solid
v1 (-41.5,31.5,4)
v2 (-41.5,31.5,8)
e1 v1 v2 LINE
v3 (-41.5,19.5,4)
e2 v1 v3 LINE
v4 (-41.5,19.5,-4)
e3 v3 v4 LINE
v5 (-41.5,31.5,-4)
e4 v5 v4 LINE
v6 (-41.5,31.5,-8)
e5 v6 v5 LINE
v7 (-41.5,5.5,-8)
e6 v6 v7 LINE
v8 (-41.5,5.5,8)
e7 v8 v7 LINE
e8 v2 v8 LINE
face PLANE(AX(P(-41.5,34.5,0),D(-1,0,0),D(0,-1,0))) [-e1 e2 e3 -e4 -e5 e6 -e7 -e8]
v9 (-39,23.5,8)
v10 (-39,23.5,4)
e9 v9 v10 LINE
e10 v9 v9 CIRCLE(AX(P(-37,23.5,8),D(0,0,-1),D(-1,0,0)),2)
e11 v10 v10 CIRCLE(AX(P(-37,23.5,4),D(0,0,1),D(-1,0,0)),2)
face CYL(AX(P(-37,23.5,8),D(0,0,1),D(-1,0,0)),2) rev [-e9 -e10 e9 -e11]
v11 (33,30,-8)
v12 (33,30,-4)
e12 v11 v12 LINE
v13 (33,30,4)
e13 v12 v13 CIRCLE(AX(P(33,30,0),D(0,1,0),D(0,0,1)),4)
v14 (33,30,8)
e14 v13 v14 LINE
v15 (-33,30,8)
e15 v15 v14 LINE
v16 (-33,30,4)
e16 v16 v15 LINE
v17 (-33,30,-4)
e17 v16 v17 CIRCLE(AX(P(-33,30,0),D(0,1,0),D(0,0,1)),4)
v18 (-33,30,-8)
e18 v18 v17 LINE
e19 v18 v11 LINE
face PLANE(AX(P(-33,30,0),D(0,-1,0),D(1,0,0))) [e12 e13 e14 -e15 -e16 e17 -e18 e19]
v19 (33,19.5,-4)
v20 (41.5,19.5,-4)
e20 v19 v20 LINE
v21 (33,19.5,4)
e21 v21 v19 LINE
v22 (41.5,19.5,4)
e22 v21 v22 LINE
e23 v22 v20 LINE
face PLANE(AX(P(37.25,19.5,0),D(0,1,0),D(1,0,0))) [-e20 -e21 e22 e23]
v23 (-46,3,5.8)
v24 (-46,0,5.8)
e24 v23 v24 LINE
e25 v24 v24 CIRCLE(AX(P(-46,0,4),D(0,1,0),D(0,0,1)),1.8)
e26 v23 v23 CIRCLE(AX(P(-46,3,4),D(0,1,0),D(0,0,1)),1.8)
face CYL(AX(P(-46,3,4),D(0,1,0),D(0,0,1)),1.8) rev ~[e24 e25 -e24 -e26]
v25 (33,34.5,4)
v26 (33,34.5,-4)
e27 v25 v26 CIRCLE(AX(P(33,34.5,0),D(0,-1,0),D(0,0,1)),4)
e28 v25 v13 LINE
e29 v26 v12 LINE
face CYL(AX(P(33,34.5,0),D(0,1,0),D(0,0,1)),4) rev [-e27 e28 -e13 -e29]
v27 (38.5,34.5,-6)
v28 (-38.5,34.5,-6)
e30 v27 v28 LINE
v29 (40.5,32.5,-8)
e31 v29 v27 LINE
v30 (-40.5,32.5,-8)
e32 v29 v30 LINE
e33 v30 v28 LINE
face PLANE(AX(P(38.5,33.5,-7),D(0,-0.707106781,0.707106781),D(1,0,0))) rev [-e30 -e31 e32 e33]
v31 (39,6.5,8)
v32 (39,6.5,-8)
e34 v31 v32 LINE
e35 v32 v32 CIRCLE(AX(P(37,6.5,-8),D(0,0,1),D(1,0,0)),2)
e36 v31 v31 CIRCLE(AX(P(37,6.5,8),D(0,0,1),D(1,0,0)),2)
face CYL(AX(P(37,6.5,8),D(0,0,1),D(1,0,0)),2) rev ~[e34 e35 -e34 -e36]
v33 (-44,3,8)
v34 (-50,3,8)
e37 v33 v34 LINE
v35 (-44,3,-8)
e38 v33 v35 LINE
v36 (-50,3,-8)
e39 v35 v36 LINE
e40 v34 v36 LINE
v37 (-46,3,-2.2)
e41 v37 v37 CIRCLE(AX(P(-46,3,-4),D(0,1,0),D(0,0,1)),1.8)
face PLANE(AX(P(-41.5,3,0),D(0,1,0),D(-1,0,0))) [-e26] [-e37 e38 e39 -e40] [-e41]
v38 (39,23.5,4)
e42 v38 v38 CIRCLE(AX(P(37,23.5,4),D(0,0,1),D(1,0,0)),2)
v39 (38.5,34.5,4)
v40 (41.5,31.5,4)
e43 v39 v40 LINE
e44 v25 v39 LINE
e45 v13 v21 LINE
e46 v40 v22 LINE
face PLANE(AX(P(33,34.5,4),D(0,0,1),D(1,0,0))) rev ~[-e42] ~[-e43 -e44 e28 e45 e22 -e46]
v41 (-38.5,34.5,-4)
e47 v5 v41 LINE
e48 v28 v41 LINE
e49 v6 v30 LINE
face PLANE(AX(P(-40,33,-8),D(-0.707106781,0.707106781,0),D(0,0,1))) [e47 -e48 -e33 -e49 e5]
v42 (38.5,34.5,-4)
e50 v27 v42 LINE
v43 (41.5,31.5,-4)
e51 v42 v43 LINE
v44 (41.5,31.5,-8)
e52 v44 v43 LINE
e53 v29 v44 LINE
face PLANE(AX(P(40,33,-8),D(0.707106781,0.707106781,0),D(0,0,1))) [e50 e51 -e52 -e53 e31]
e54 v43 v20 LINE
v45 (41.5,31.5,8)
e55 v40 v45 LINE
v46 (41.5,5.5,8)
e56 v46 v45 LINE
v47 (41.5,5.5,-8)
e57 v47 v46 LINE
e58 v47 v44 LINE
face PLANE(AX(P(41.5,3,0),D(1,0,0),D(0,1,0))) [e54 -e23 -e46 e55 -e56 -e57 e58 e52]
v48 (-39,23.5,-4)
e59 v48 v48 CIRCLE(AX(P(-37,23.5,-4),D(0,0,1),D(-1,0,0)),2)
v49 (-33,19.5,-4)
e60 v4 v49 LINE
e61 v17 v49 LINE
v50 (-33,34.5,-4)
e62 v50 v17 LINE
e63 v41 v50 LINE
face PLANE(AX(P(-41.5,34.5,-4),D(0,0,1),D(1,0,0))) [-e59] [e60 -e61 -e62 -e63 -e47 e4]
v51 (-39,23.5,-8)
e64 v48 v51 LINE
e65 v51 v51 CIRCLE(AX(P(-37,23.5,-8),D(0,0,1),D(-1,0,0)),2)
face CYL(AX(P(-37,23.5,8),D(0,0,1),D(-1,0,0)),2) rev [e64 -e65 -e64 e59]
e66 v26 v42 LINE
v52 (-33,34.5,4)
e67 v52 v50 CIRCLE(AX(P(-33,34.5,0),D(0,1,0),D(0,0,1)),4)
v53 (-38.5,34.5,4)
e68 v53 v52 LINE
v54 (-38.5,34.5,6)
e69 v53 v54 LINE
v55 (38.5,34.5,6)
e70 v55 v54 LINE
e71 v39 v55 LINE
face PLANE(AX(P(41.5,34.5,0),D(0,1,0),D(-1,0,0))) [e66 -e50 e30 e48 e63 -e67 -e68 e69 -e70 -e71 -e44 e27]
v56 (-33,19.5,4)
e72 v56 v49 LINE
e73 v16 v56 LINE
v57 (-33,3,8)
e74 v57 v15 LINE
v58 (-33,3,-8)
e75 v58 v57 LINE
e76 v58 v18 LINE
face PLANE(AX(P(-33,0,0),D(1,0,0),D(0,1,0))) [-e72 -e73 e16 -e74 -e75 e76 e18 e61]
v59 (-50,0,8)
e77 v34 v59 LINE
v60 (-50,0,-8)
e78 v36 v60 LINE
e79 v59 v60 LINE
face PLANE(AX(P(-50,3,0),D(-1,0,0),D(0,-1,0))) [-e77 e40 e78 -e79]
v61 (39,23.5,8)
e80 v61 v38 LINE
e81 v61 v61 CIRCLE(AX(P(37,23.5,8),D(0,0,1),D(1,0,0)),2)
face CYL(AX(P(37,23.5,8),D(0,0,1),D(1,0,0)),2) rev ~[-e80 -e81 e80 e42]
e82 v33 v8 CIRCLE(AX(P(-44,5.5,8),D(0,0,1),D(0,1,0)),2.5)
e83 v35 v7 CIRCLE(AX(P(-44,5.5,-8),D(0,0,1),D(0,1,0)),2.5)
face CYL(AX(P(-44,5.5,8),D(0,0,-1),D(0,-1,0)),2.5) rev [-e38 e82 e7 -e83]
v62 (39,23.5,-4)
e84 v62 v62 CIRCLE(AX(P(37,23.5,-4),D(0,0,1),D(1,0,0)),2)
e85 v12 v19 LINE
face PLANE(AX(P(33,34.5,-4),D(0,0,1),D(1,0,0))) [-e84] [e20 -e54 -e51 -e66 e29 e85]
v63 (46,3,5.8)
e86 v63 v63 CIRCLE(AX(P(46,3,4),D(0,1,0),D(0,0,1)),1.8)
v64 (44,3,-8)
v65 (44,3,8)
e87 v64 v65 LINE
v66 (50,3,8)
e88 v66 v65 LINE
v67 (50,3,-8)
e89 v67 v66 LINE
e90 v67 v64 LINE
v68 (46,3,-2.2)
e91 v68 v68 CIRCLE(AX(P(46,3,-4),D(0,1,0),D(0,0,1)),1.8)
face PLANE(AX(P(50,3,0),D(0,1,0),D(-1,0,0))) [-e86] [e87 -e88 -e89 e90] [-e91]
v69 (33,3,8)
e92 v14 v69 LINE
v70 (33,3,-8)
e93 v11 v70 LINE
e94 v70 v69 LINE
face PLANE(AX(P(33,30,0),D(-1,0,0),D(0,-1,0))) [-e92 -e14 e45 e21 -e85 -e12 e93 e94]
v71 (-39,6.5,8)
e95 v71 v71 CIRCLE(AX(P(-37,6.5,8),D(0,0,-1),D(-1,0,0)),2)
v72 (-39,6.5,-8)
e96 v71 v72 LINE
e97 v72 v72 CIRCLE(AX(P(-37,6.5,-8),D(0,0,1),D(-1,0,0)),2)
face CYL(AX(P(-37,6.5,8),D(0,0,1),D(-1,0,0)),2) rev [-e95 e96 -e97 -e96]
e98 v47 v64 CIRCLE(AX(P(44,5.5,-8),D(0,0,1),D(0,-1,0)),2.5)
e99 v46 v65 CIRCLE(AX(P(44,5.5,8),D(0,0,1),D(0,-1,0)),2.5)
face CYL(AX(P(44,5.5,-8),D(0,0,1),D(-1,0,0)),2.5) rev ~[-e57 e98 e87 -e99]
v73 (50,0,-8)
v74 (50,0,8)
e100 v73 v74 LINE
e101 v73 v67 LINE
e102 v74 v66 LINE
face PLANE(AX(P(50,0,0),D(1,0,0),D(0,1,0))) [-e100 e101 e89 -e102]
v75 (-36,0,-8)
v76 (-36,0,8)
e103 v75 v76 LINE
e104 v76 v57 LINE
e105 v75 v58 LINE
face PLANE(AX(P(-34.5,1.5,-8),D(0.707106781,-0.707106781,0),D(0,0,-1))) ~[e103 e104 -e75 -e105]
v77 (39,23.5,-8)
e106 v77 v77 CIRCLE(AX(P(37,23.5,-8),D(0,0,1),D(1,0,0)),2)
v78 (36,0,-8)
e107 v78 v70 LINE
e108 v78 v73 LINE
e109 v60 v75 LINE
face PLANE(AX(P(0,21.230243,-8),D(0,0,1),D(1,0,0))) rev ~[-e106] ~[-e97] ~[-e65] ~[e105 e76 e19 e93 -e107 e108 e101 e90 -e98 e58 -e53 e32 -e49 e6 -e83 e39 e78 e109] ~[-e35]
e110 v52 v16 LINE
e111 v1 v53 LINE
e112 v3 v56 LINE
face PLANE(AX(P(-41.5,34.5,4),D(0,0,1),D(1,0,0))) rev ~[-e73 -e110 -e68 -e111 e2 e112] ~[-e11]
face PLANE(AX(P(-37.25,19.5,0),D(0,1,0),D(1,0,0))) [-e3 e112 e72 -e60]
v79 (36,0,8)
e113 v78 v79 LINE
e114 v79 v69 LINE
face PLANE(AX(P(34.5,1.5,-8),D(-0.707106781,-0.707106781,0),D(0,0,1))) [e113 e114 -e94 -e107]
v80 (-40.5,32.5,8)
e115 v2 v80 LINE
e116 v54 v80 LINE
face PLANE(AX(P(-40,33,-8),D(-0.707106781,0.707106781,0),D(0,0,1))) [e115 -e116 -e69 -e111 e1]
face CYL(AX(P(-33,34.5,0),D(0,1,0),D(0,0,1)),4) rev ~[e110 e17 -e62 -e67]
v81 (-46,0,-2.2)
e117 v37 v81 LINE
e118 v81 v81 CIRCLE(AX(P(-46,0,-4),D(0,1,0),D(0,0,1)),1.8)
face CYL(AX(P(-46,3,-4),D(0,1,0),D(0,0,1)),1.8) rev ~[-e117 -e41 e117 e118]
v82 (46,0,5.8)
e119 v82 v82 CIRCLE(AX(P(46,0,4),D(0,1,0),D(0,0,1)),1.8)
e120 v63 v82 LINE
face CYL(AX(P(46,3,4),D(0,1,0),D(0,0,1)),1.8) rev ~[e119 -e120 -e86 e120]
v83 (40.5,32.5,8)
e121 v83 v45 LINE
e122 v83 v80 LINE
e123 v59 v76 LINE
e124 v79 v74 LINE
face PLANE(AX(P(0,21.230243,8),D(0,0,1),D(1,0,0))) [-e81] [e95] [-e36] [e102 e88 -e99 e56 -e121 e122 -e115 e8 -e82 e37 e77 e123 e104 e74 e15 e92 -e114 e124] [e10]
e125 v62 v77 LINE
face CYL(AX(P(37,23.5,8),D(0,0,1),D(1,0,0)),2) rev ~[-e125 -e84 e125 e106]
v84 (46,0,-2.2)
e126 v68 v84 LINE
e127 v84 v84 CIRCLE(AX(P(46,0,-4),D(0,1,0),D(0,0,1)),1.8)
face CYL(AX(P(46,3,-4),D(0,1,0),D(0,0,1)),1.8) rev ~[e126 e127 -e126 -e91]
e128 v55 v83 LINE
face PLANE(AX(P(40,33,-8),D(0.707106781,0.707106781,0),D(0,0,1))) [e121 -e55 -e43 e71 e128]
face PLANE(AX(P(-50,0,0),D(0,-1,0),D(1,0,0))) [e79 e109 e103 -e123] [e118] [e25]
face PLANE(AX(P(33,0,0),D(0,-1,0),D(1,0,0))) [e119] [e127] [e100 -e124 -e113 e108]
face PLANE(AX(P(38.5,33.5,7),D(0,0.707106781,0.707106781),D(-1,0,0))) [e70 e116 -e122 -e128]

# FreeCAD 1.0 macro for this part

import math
import FreeCAD as App
import Part
import Sketcher

V = App.Vector
Q = App.Units.Quantity


def edges_at(feature, points):
    """Names of the edges that pass closest to the given points."""
    edges = feature.Shape.Edges
    near = lambda p: min(range(len(edges)), key=lambda i: edges[i].distToShape(Part.Vertex(*p))[0])
    return sorted({f"Edge{near(p) + 1}" for p in points})

doc = App.newDocument("Part")
body = doc.addObject("PartDesign::Body", "Body")

sketch1 = doc.addObject("Sketcher::SketchObject", "Sketch")
body.addObject(sketch1)
sketch1.AttachmentSupport = (doc.XY_Plane, [""])
sketch1.MapMode = "FlatFace"
sketch1.addGeometry(Part.LineSegment(V(-50, 0, 0), V(-33, 0, 0)), False)
sketch1.addGeometry(Part.LineSegment(V(-33, 0, 0), V(-33, 30, 0)), False)
sketch1.addGeometry(Part.LineSegment(V(-33, 30, 0), V(33, 30, 0)), False)
sketch1.addGeometry(Part.LineSegment(V(33, 30, 0), V(33, 0, 0)), False)
sketch1.addGeometry(Part.LineSegment(V(33, 0, 0), V(50, 0, 0)), False)
sketch1.addGeometry(Part.LineSegment(V(50, 0, 0), V(50, 3, 0)), False)
sketch1.addGeometry(Part.LineSegment(V(50, 3, 0), V(41.5, 3, 0)), False)
sketch1.addGeometry(Part.LineSegment(V(41.5, 3, 0), V(41.5, 34.5, 0)), False)
sketch1.addGeometry(Part.LineSegment(V(41.5, 34.5, 0), V(-41.5, 34.5, 0)), False)
sketch1.addGeometry(Part.LineSegment(V(-41.5, 34.5, 0), V(-41.5, 3, 0)), False)
sketch1.addGeometry(Part.LineSegment(V(-41.5, 3, 0), V(-50, 3, 0)), False)
sketch1.addGeometry(Part.LineSegment(V(-50, 3, 0), V(-50, 0, 0)), False)
sketch1.addConstraint(Sketcher.Constraint("Coincident", 0, 2, 1, 1))
sketch1.addConstraint(Sketcher.Constraint("Coincident", 1, 2, 2, 1))
sketch1.addConstraint(Sketcher.Constraint("Coincident", 2, 2, 3, 1))
sketch1.addConstraint(Sketcher.Constraint("Coincident", 3, 2, 4, 1))
sketch1.addConstraint(Sketcher.Constraint("Coincident", 4, 2, 5, 1))
sketch1.addConstraint(Sketcher.Constraint("Coincident", 5, 2, 6, 1))
sketch1.addConstraint(Sketcher.Constraint("Coincident", 6, 2, 7, 1))
sketch1.addConstraint(Sketcher.Constraint("Coincident", 7, 2, 8, 1))
sketch1.addConstraint(Sketcher.Constraint("Coincident", 8, 2, 9, 1))
sketch1.addConstraint(Sketcher.Constraint("Coincident", 9, 2, 10, 1))
sketch1.addConstraint(Sketcher.Constraint("Coincident", 10, 2, 11, 1))
sketch1.addConstraint(Sketcher.Constraint("Coincident", 11, 2, 0, 1))
sketch1.addConstraint(Sketcher.Constraint("Horizontal", 0))
sketch1.addConstraint(Sketcher.Constraint("Vertical", 1))
sketch1.addConstraint(Sketcher.Constraint("Horizontal", 2))
sketch1.addConstraint(Sketcher.Constraint("Vertical", 3))
sketch1.addConstraint(Sketcher.Constraint("Horizontal", 4))
sketch1.addConstraint(Sketcher.Constraint("Vertical", 5))
sketch1.addConstraint(Sketcher.Constraint("Horizontal", 6))
sketch1.addConstraint(Sketcher.Constraint("Vertical", 7))
sketch1.addConstraint(Sketcher.Constraint("Horizontal", 8))
sketch1.addConstraint(Sketcher.Constraint("Vertical", 9))
sketch1.addConstraint(Sketcher.Constraint("Horizontal", 10))
sketch1.addConstraint(Sketcher.Constraint("Vertical", 11))
sketch1.addConstraint(Sketcher.Constraint("Symmetric", 0, 2, 3, 2, -1, 1))
sketch1.addConstraint(Sketcher.Constraint("Symmetric", 6, 2, 9, 2, -2))
sketch1.addConstraint(Sketcher.Constraint("Symmetric", 4, 2, 11, 2, -2))
sketch1.addConstraint(Sketcher.Constraint("DistanceX", 0, 1, 0, 2, Q("17 mm")))
sketch1.addConstraint(Sketcher.Constraint("DistanceX", 2, 1, 2, 2, Q("66 mm")))
sketch1.addConstraint(Sketcher.Constraint("DistanceX", 8, 2, 8, 1, Q("83 mm")))
sketch1.addConstraint(Sketcher.Constraint("DistanceY", 1, 1, 1, 2, Q("30 mm")))
sketch1.addConstraint(Sketcher.Constraint("DistanceY", 5, 1, 5, 2, Q("3 mm")))
sketch1.addConstraint(Sketcher.Constraint("DistanceY", 7, 1, 7, 2, Q("31.5 mm")))
pad1 = doc.addObject("PartDesign::Pad", "Pad")
body.addObject(pad1)
pad1.Profile = sketch1
pad1.Length = 16
pad1.Midplane = True
doc.recompute()

chamfer = doc.addObject("PartDesign::Chamfer", "Chamfer")
body.addObject(chamfer)
chamfer.Base = (pad1, edges_at(pad1, [
    (-41.5, 34.5, 0),
    (41.5, 34.5, 0),
    (33, 0, 0),
    (-33, 0, 0),
]))
chamfer.Size = 3
doc.recompute()

fillet = doc.addObject("PartDesign::Fillet", "Fillet")
body.addObject(fillet)
fillet.Base = (chamfer, edges_at(chamfer, [(-41.5, 3, 0), (41.5, 3, 0)]))
fillet.Radius = 2.5

sketch2 = doc.addObject("Sketcher::SketchObject", "Sketch001")
body.addObject(sketch2)
sketch2.AttachmentSupport = (doc.XY_Plane, [""])
sketch2.MapMode = "FlatFace"
sketch2.AttachmentOffset = App.Placement(V(0, 0, 8), App.Rotation())
sketch2.addGeometry(Part.Circle(V(37, 23.5, 0), V(0, 0, 1), 2), False)
sketch2.addGeometry(Part.Circle(V(37, 6.5, 0), V(0, 0, 1), 2), False)
sketch2.addConstraint(Sketcher.Constraint("Equal", 0, 1))
sketch2.addConstraint(Sketcher.Constraint("Vertical", 0, 3, 1, 3))
sketch2.addConstraint(Sketcher.Constraint("Diameter", 0, Q("4 mm")))
sketch2.addConstraint(Sketcher.Constraint("DistanceX", -1, 1, 0, 3, Q("37 mm")))
sketch2.addConstraint(Sketcher.Constraint("DistanceY", 1, 3, 0, 3, Q("17 mm")))
sketch2.addConstraint(Sketcher.Constraint("DistanceY", -1, 1, 0, 3, Q("23.5 mm")))
pocket1 = doc.addObject("PartDesign::Pocket", "Pocket")
body.addObject(pocket1)
pocket1.Profile = sketch2
pocket1.Type = "ThroughAll"
doc.recompute()

mirrored = doc.addObject("PartDesign::Mirrored", "Mirrored")
body.addObject(mirrored)
mirrored.Originals = [pocket1]
mirrored.MirrorPlane = (doc.YZ_Plane, [""])
body.Tip = mirrored

sketch3 = doc.addObject("Sketcher::SketchObject", "Sketch002")
body.addObject(sketch3)
sketch3.AttachmentSupport = (doc.XZ_Plane, [""])
sketch3.MapMode = "FlatFace"
sketch3.AttachmentOffset = App.Placement(V(0, 0, -3), App.Rotation())
sketch3.addGeometry(Part.Circle(V(46, -4, 0), V(0, 0, 1), 1.8), False)
sketch3.addGeometry(Part.Circle(V(46, 4, 0), V(0, 0, 1), 1.8), False)
sketch3.addGeometry(Part.Circle(V(-46, -4, 0), V(0, 0, 1), 1.8), False)
sketch3.addGeometry(Part.Circle(V(-46, 4, 0), V(0, 0, 1), 1.8), False)
sketch3.addConstraint(Sketcher.Constraint("Equal", 0, 1))
sketch3.addConstraint(Sketcher.Constraint("Equal", 1, 2))
sketch3.addConstraint(Sketcher.Constraint("Equal", 2, 3))
sketch3.addConstraint(Sketcher.Constraint("Symmetric", 1, 3, 2, 3, -1, 1))
sketch3.addConstraint(Sketcher.Constraint("Symmetric", 0, 3, 3, 3, -1, 1))
sketch3.addConstraint(Sketcher.Constraint("Symmetric", 0, 3, 2, 3, -2))
sketch3.addConstraint(Sketcher.Constraint("Diameter", 0, Q("3.6 mm")))
sketch3.addConstraint(Sketcher.Constraint("DistanceX", -1, 1, 0, 3, Q("46 mm")))
sketch3.addConstraint(Sketcher.Constraint("DistanceY", 0, 3, -1, 1, Q("4 mm")))
pocket2 = doc.addObject("PartDesign::Pocket", "Pocket001")
body.addObject(pocket2)
pocket2.Profile = sketch3
pocket2.Type = "ThroughAll"
pocket2.Reversed = True

sketch4 = doc.addObject("Sketcher::SketchObject", "Sketch003")
body.addObject(sketch4)
sketch4.AttachmentSupport = (doc.XZ_Plane, [""])
sketch4.MapMode = "FlatFace"
sketch4.AttachmentOffset = App.Placement(V(0, 0, -34.5), App.Rotation())
sketch4.addGeometry(Part.LineSegment(V(33, -4, 0), V(33, 4, 0)), False)
sketch4.addGeometry(Part.LineSegment(V(33, 4, 0), V(42, 4, 0)), False)
sketch4.addGeometry(Part.LineSegment(V(42, 4, 0), V(42, -4, 0)), False)
sketch4.addGeometry(Part.LineSegment(V(42, -4, 0), V(33, -4, 0)), False)
sketch4.addGeometry(Part.LineSegment(V(-42, -4, 0), V(-42, 4, 0)), False)
sketch4.addGeometry(Part.LineSegment(V(-42, 4, 0), V(-33, 4, 0)), False)
sketch4.addGeometry(Part.LineSegment(V(-33, 4, 0), V(-33, -4, 0)), False)
sketch4.addGeometry(Part.LineSegment(V(-33, -4, 0), V(-42, -4, 0)), False)
sketch4.addConstraint(Sketcher.Constraint("Coincident", 0, 2, 1, 1))
sketch4.addConstraint(Sketcher.Constraint("Coincident", 1, 2, 2, 1))
sketch4.addConstraint(Sketcher.Constraint("Coincident", 2, 2, 3, 1))
sketch4.addConstraint(Sketcher.Constraint("Coincident", 3, 2, 0, 1))
sketch4.addConstraint(Sketcher.Constraint("Coincident", 4, 2, 5, 1))
sketch4.addConstraint(Sketcher.Constraint("Coincident", 5, 2, 6, 1))
sketch4.addConstraint(Sketcher.Constraint("Coincident", 6, 2, 7, 1))
sketch4.addConstraint(Sketcher.Constraint("Coincident", 7, 2, 4, 1))
sketch4.addConstraint(Sketcher.Constraint("Vertical", 0))
sketch4.addConstraint(Sketcher.Constraint("Horizontal", 1))
sketch4.addConstraint(Sketcher.Constraint("Vertical", 2))
sketch4.addConstraint(Sketcher.Constraint("Horizontal", 3))
sketch4.addConstraint(Sketcher.Constraint("Vertical", 4))
sketch4.addConstraint(Sketcher.Constraint("Horizontal", 5))
sketch4.addConstraint(Sketcher.Constraint("Vertical", 6))
sketch4.addConstraint(Sketcher.Constraint("Horizontal", 7))
sketch4.addConstraint(Sketcher.Constraint("Symmetric", 2, 2, 4, 2, -1, 1))
sketch4.addConstraint(Sketcher.Constraint("Symmetric", 0, 2, 6, 2, -1, 1))
sketch4.addConstraint(Sketcher.Constraint("Horizontal", 1, 2, 4, 2))
sketch4.addConstraint(Sketcher.Constraint("DistanceY", 0, 1, 0, 2, Q("8 mm")))
sketch4.addConstraint(Sketcher.Constraint("DistanceX", 1, 1, 1, 2, Q("8.5 mm")))
sketch4.addConstraint(Sketcher.Constraint("DistanceX", -1, 1, 0, 2, Q("33 mm")))
pocket3 = doc.addObject("PartDesign::Pocket", "Pocket002")
body.addObject(pocket3)
pocket3.Profile = sketch4
pocket3.Length = 15
pocket3.Reversed = True

sketch5 = doc.addObject("Sketcher::SketchObject", "Sketch004")
body.addObject(sketch5)
sketch5.AttachmentSupport = (doc.XZ_Plane, [""])
sketch5.MapMode = "FlatFace"
sketch5.AttachmentOffset = App.Placement(V(0, 0, -34.5), App.Rotation())
sketch5.addGeometry(Part.LineSegment(V(33, 4, 0), V(33, -4, 0)), False)
sketch5.addGeometry(Part.ArcOfCircle(Part.Circle(V(33, 0, 0), V(0, 0, 1), 4), math.radians(90), math.radians(270)), False)
sketch5.addGeometry(Part.LineSegment(V(-33, -4, 0), V(-33, 4, 0)), False)
sketch5.addGeometry(Part.ArcOfCircle(Part.Circle(V(-33, 0, 0), V(0, 0, 1), 4), math.radians(-90), math.radians(90)), False)
sketch5.addConstraint(Sketcher.Constraint("Coincident", 0, 1, 1, 1))
sketch5.addConstraint(Sketcher.Constraint("Coincident", 1, 2, 0, 2))
sketch5.addConstraint(Sketcher.Constraint("Coincident", 2, 1, 3, 1))
sketch5.addConstraint(Sketcher.Constraint("Coincident", 3, 2, 2, 2))
sketch5.addConstraint(Sketcher.Constraint("Vertical", 0))
sketch5.addConstraint(Sketcher.Constraint("Vertical", 2))
sketch5.addConstraint(Sketcher.Constraint("Equal", 1, 3))
sketch5.addConstraint(Sketcher.Constraint("Symmetric", 1, 3, 3, 3, -1, 1))
sketch5.addConstraint(Sketcher.Constraint("Symmetric", 1, 2, 2, 1, -2))
sketch5.addConstraint(Sketcher.Constraint("Vertical", 1, 3, 0, 1))
sketch5.addConstraint(Sketcher.Constraint("Radius", 1, Q("4 mm")))
sketch5.addConstraint(Sketcher.Constraint("DistanceX", -1, 1, 1, 3, Q("33 mm")))
pocket4 = doc.addObject("PartDesign::Pocket", "Pocket003")
body.addObject(pocket4)
pocket4.Profile = sketch5
pocket4.Length = 15
pocket4.Reversed = True
doc.recompute()

chamfer2 = doc.addObject("PartDesign::Chamfer", "Chamfer001")
body.addObject(chamfer2)
chamfer2.Base = (pocket4, edges_at(pocket4, [(0, 34.5, -8), (0, 34.5, 8)]))
chamfer2.Size = 2

doc.recompute()
